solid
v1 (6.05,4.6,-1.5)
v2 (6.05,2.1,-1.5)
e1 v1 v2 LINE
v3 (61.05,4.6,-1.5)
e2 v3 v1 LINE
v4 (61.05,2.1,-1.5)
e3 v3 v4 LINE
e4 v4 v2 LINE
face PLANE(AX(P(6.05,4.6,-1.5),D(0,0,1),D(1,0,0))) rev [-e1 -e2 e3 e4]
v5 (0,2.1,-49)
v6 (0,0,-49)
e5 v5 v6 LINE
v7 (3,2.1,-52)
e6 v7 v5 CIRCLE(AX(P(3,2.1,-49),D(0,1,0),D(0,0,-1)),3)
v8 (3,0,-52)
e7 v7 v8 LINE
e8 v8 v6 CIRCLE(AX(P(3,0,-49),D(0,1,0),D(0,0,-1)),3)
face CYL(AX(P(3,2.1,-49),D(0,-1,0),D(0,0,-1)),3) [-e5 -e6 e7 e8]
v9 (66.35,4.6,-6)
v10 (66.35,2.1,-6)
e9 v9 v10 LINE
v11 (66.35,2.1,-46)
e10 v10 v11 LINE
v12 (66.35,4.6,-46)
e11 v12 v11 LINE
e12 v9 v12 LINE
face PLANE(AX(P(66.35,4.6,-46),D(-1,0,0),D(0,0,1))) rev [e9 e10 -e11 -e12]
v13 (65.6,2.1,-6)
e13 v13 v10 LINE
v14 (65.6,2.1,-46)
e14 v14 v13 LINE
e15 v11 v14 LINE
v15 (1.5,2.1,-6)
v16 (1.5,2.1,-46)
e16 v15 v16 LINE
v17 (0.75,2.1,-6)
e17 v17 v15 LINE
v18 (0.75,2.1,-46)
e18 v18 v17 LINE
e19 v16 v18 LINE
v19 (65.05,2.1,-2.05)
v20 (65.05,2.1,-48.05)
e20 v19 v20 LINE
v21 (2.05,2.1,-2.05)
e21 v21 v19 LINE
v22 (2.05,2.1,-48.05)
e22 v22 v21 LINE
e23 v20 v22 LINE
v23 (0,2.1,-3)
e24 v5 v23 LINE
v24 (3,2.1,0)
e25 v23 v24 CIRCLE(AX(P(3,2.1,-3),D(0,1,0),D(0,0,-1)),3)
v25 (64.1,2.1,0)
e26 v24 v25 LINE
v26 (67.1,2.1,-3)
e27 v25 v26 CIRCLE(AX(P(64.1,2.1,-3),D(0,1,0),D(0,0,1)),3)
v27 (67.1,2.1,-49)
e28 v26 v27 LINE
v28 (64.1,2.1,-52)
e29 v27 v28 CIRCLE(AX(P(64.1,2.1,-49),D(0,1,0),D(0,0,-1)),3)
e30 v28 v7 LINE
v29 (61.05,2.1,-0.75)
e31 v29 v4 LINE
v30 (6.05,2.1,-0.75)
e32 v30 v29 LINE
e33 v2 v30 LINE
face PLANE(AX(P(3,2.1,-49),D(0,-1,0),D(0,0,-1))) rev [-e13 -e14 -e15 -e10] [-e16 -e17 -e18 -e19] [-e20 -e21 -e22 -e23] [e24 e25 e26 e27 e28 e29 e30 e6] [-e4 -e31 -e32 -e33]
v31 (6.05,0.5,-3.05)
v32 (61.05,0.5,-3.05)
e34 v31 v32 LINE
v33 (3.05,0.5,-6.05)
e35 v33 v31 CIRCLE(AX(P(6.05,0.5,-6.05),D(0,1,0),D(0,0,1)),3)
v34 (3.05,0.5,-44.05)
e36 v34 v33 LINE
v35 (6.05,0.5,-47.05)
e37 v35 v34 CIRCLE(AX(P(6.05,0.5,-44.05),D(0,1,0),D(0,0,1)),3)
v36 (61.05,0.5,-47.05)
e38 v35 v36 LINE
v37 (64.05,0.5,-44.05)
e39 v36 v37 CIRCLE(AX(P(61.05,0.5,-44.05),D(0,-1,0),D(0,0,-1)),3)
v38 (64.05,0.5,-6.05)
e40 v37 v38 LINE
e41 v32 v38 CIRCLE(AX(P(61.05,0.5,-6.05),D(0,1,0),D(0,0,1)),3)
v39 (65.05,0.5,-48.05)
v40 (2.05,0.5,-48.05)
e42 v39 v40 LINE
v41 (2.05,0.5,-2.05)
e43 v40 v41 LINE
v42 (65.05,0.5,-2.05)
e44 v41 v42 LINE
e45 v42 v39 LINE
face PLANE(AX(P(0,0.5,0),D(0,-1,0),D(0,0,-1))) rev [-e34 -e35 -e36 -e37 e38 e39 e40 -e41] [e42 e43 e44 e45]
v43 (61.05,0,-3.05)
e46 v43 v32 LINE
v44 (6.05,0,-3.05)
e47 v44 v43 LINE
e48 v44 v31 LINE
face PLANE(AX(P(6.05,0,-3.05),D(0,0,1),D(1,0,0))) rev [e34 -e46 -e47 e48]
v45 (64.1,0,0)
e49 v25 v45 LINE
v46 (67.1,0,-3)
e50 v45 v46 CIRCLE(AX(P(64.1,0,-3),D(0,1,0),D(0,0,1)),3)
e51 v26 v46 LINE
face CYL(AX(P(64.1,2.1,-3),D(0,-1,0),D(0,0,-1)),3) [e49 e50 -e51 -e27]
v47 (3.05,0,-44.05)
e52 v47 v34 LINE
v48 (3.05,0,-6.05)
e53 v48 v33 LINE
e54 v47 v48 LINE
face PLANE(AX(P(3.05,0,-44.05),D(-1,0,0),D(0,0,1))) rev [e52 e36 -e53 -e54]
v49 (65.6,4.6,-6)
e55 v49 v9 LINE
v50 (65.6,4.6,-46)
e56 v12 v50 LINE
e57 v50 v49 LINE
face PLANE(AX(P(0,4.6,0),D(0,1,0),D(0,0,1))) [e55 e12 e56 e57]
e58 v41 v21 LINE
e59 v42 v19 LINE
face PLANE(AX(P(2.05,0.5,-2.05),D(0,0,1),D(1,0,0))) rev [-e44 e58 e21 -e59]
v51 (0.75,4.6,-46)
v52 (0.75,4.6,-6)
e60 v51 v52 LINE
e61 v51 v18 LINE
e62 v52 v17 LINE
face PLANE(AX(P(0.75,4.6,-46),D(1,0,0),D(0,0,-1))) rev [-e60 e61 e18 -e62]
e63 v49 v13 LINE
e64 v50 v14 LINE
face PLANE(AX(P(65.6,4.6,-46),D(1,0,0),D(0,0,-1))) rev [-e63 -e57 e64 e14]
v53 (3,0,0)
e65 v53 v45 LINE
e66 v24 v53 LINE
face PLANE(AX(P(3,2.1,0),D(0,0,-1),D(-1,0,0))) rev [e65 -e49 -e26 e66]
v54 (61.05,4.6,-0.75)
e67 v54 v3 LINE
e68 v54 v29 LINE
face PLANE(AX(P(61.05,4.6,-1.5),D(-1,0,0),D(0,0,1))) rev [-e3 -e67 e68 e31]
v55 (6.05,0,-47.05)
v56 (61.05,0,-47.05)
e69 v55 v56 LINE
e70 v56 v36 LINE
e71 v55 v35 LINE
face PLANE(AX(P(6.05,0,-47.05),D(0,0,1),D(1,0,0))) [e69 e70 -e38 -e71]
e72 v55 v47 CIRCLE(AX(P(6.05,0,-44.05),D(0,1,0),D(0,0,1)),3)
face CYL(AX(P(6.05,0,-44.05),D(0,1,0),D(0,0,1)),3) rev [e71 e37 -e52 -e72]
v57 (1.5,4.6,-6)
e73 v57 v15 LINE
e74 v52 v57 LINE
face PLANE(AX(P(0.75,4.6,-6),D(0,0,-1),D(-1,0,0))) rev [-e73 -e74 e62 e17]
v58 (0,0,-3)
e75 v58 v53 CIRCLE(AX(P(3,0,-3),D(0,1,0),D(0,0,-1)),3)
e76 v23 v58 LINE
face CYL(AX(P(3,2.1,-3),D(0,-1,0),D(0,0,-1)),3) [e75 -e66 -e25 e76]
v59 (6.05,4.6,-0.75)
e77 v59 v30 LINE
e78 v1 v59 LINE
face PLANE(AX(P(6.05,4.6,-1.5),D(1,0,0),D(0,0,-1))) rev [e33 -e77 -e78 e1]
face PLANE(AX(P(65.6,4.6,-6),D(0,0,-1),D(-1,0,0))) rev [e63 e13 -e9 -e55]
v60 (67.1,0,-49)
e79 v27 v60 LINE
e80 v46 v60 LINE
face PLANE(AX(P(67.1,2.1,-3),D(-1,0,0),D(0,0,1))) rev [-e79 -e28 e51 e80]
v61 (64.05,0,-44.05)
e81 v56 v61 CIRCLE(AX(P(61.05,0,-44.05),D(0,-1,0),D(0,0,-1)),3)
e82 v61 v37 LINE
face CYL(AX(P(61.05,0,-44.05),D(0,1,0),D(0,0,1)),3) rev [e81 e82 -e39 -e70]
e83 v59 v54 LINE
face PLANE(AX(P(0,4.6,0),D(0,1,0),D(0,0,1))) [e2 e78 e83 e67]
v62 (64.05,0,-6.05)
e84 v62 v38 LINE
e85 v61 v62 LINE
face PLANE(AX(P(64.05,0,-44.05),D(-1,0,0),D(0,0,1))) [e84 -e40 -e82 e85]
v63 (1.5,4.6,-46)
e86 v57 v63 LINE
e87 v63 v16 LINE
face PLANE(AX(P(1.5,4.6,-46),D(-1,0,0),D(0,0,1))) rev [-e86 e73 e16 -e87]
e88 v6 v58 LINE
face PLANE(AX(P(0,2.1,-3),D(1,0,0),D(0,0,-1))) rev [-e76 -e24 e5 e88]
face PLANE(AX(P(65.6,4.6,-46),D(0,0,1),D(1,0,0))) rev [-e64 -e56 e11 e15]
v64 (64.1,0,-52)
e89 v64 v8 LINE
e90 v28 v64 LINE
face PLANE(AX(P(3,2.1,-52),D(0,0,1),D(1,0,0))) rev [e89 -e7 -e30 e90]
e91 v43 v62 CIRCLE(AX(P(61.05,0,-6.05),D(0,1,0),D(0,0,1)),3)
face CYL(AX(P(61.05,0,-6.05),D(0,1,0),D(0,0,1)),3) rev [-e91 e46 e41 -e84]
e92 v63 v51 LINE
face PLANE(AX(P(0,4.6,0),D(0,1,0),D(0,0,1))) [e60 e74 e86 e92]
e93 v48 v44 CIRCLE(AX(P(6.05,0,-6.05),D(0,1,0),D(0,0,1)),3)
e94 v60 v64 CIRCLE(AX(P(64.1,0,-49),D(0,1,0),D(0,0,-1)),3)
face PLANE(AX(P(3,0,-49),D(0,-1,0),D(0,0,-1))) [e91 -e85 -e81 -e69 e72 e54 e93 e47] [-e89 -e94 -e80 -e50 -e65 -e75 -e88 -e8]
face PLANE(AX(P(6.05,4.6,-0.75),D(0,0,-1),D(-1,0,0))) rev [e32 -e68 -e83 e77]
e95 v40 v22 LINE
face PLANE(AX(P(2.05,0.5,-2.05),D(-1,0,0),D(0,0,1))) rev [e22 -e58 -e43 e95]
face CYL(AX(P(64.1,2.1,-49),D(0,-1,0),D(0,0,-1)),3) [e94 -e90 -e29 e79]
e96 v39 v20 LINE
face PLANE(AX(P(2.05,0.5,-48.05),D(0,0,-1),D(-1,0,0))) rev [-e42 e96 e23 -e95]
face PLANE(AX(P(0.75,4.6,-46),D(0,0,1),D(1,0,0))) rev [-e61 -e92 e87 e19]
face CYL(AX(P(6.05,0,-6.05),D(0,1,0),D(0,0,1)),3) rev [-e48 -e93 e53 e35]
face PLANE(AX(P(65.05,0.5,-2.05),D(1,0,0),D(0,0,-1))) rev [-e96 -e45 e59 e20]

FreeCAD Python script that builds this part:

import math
import FreeCAD as App
import Part
import Sketcher

V = App.Vector
Q = App.Units.Quantity

doc = App.newDocument("Part")
body = doc.addObject("PartDesign::Body", "Body")

# Sketch on XZ plane
sketch1 = body.newObject("Sketcher::SketchObject", "Sketch")
sketch1.AttachmentSupport = (doc.getObject("XZ_Plane"), [""])
sketch1.MapMode = "FlatFace"
sketch1.addGeometry(Part.LineSegment(V(3, 0, 0), V(64.1, 0, 0)), False)
sketch1.addGeometry(Part.ArcOfCircle(Part.Circle(V(64.1, -3, 0), V(0, 0, 1), 3), math.radians(0), math.radians(90)), False)
sketch1.addGeometry(Part.LineSegment(V(67.1, -3, 0), V(67.1, -49, 0)), False)
sketch1.addGeometry(Part.ArcOfCircle(Part.Circle(V(64.1, -49, 0), V(0, 0, 1), 3), math.radians(-90), math.radians(0)), False)
sketch1.addGeometry(Part.LineSegment(V(64.1, -52, 0), V(3, -52, 0)), False)
sketch1.addGeometry(Part.ArcOfCircle(Part.Circle(V(3, -49, 0), V(0, 0, 1), 3), math.radians(180), math.radians(270)), False)
sketch1.addGeometry(Part.LineSegment(V(0, -49, 0), V(0, -3, 0)), False)
sketch1.addGeometry(Part.ArcOfCircle(Part.Circle(V(3, -3, 0), V(0, 0, 1), 3), math.radians(90), math.radians(180)), False)
sketch1.addConstraint(Sketcher.Constraint("Tangent", 0, 2, 1, 2))
sketch1.addConstraint(Sketcher.Constraint("Tangent", 1, 1, 2, 1))
sketch1.addConstraint(Sketcher.Constraint("Tangent", 2, 2, 3, 2))
sketch1.addConstraint(Sketcher.Constraint("Tangent", 3, 1, 4, 1))
sketch1.addConstraint(Sketcher.Constraint("Tangent", 4, 2, 5, 2))
sketch1.addConstraint(Sketcher.Constraint("Tangent", 5, 1, 6, 1))
sketch1.addConstraint(Sketcher.Constraint("Tangent", 6, 2, 7, 2))
sketch1.addConstraint(Sketcher.Constraint("Tangent", 7, 1, 0, 1))
sketch1.addConstraint(Sketcher.Constraint("Horizontal", 0))
sketch1.addConstraint(Sketcher.Constraint("Vertical", 2))
sketch1.addConstraint(Sketcher.Constraint("Horizontal", 4))
sketch1.addConstraint(Sketcher.Constraint("Vertical", 6))
sketch1.addConstraint(Sketcher.Constraint("Equal", 1, 3))
sketch1.addConstraint(Sketcher.Constraint("Equal", 3, 5))
sketch1.addConstraint(Sketcher.Constraint("Equal", 5, 7))
sketch1.addConstraint(Sketcher.Constraint("PointOnObject", 0, 2, -1))
sketch1.addConstraint(Sketcher.Constraint("PointOnObject", 5, 1, -2))
sketch1.addConstraint(Sketcher.Constraint("Radius", 1, Q("3 mm")))
sketch1.addConstraint(Sketcher.Constraint("DistanceY", 2, 2, 2, 1, Q("46 mm")))
sketch1.addConstraint(Sketcher.Constraint("DistanceX", 0, 1, 0, 2, Q("61.1 mm")))
pad1 = body.newObject("PartDesign::Pad", "Pad")
pad1.Profile = sketch1
pad1.Length = 2.1
pad1.Reversed = True

# Sketch on XZ plane
sketch2 = body.newObject("Sketcher::SketchObject", "Sketch001")
sketch2.AttachmentSupport = (doc.getObject("XZ_Plane"), [""])
sketch2.MapMode = "FlatFace"
sketch2.AttachmentOffset = App.Placement(V(0, 0, -2.1), App.Rotation())
sketch2.addGeometry(Part.LineSegment(V(2.05, -48.05, 0), V(2.05, -2.05, 0)), False)
sketch2.addGeometry(Part.LineSegment(V(2.05, -2.05, 0), V(65.05, -2.05, 0)), False)
sketch2.addGeometry(Part.LineSegment(V(65.05, -2.05, 0), V(65.05, -48.05, 0)), False)
sketch2.addGeometry(Part.LineSegment(V(65.05, -48.05, 0), V(2.05, -48.05, 0)), False)
sketch2.addConstraint(Sketcher.Constraint("Coincident", 0, 2, 1, 1))
sketch2.addConstraint(Sketcher.Constraint("Coincident", 1, 2, 2, 1))
sketch2.addConstraint(Sketcher.Constraint("Coincident", 2, 2, 3, 1))
sketch2.addConstraint(Sketcher.Constraint("Coincident", 3, 2, 0, 1))
sketch2.addConstraint(Sketcher.Constraint("Vertical", 0))
sketch2.addConstraint(Sketcher.Constraint("Horizontal", 1))
sketch2.addConstraint(Sketcher.Constraint("Vertical", 2))
sketch2.addConstraint(Sketcher.Constraint("Horizontal", 3))
sketch2.addConstraint(Sketcher.Constraint("DistanceX", 1, 1, 1, 2, Q("63 mm")))
sketch2.addConstraint(Sketcher.Constraint("DistanceY", 0, 1, 0, 2, Q("46 mm")))
sketch2.addConstraint(Sketcher.Constraint("DistanceX", -1, 1, 0, 2, Q("2.05 mm")))
sketch2.addConstraint(Sketcher.Constraint("DistanceY", 0, 2, -1, 1, Q("2.05 mm")))
pocket1 = body.newObject("PartDesign::Pocket", "Pocket")
pocket1.Profile = sketch2
pocket1.Length = 1.6
pocket1.Reversed = True

# Sketch on XZ plane
sketch3 = body.newObject("Sketcher::SketchObject", "Sketch002")
sketch3.AttachmentSupport = (doc.getObject("XZ_Plane"), [""])
sketch3.MapMode = "FlatFace"
sketch3.AttachmentOffset = App.Placement(V(0, 0, -0.5), App.Rotation())
sketch3.addGeometry(Part.LineSegment(V(61.05, -47.05, 0), V(6.05, -47.05, 0)), False)
sketch3.addGeometry(Part.ArcOfCircle(Part.Circle(V(6.05, -44.05, 0), V(0, 0, 1), 3), math.radians(180), math.radians(270)), False)
sketch3.addGeometry(Part.LineSegment(V(3.05, -44.05, 0), V(3.05, -6.05, 0)), False)
sketch3.addGeometry(Part.ArcOfCircle(Part.Circle(V(6.05, -6.05, 0), V(0, 0, 1), 3), math.radians(90), math.radians(180)), False)
sketch3.addGeometry(Part.LineSegment(V(6.05, -3.05, 0), V(61.05, -3.05, 0)), False)
sketch3.addGeometry(Part.ArcOfCircle(Part.Circle(V(61.05, -6.05, 0), V(0, 0, 1), 3), math.radians(0), math.radians(90)), False)
sketch3.addGeometry(Part.LineSegment(V(64.05, -6.05, 0), V(64.05, -44.05, 0)), False)
sketch3.addGeometry(Part.ArcOfCircle(Part.Circle(V(61.05, -44.05, 0), V(0, 0, 1), 3), math.radians(-90), math.radians(0)), False)
sketch3.addConstraint(Sketcher.Constraint("Tangent", 0, 2, 1, 2))
sketch3.addConstraint(Sketcher.Constraint("Tangent", 1, 1, 2, 1))
sketch3.addConstraint(Sketcher.Constraint("Tangent", 2, 2, 3, 2))
sketch3.addConstraint(Sketcher.Constraint("Tangent", 3, 1, 4, 1))
sketch3.addConstraint(Sketcher.Constraint("Tangent", 4, 2, 5, 2))
sketch3.addConstraint(Sketcher.Constraint("Tangent", 5, 1, 6, 1))
sketch3.addConstraint(Sketcher.Constraint("Tangent", 6, 2, 7, 2))
sketch3.addConstraint(Sketcher.Constraint("Tangent", 7, 1, 0, 1))
sketch3.addConstraint(Sketcher.Constraint("Horizontal", 0))
sketch3.addConstraint(Sketcher.Constraint("Vertical", 2))
sketch3.addConstraint(Sketcher.Constraint("Horizontal", 4))
sketch3.addConstraint(Sketcher.Constraint("Vertical", 6))
sketch3.addConstraint(Sketcher.Constraint("Equal", 1, 3))
sketch3.addConstraint(Sketcher.Constraint("Equal", 3, 5))
sketch3.addConstraint(Sketcher.Constraint("Equal", 5, 7))
sketch3.addConstraint(Sketcher.Constraint("Radius", 1, Q("3 mm")))
sketch3.addConstraint(Sketcher.Constraint("DistanceX", 0, 2, 0, 1, Q("55 mm")))
sketch3.addConstraint(Sketcher.Constraint("DistanceY", 2, 1, 2, 2, Q("38 mm")))
sketch3.addConstraint(Sketcher.Constraint("DistanceX", -1, 1, 1, 3, Q("6.05 mm")))
sketch3.addConstraint(Sketcher.Constraint("DistanceY", 1, 3, -1, 1, Q("44.05 mm")))
pocket2 = body.newObject("PartDesign::Pocket", "Pocket001")
pocket2.Profile = sketch3
pocket2.Length = 0.5
pocket2.Reversed = True

# Sketch on XZ plane
sketch4 = body.newObject("Sketcher::SketchObject", "Sketch003")
sketch4.AttachmentSupport = (doc.getObject("XZ_Plane"), [""])
sketch4.MapMode = "FlatFace"
sketch4.AttachmentOffset = App.Placement(V(0, 0, -2.1), App.Rotation())
sketch4.addGeometry(Part.LineSegment(V(65.6, -46, 0), V(65.6, -6, 0)), False)
sketch4.addGeometry(Part.LineSegment(V(65.6, -6, 0), V(66.35, -6, 0)), False)
sketch4.addGeometry(Part.LineSegment(V(66.35, -6, 0), V(66.35, -46, 0)), False)
sketch4.addGeometry(Part.LineSegment(V(66.35, -46, 0), V(65.6, -46, 0)), False)
sketch4.addGeometry(Part.LineSegment(V(0.75, -46, 0), V(0.75, -6, 0)), False)
sketch4.addGeometry(Part.LineSegment(V(0.75, -6, 0), V(1.5, -6, 0)), False)
sketch4.addGeometry(Part.LineSegment(V(1.5, -6, 0), V(1.5, -46, 0)), False)
sketch4.addGeometry(Part.LineSegment(V(1.5, -46, 0), V(0.75, -46, 0)), False)
sketch4.addGeometry(Part.LineSegment(V(6.05, -1.5, 0), V(6.05, -0.75, 0)), False)
sketch4.addGeometry(Part.LineSegment(V(6.05, -0.75, 0), V(61.05, -0.75, 0)), False)
sketch4.addGeometry(Part.LineSegment(V(61.05, -0.75, 0), V(61.05, -1.5, 0)), False)
sketch4.addGeometry(Part.LineSegment(V(61.05, -1.5, 0), V(6.05, -1.5, 0)), False)
sketch4.addConstraint(Sketcher.Constraint("Coincident", 0, 2, 1, 1))
sketch4.addConstraint(Sketcher.Constraint("Coincident", 1, 2, 2, 1))
sketch4.addConstraint(Sketcher.Constraint("Coincident", 2, 2, 3, 1))
sketch4.addConstraint(Sketcher.Constraint("Coincident", 3, 2, 0, 1))
sketch4.addConstraint(Sketcher.Constraint("Coincident", 4, 2, 5, 1))
sketch4.addConstraint(Sketcher.Constraint("Coincident", 5, 2, 6, 1))
sketch4.addConstraint(Sketcher.Constraint("Coincident", 6, 2, 7, 1))
sketch4.addConstraint(Sketcher.Constraint("Coincident", 7, 2, 4, 1))
sketch4.addConstraint(Sketcher.Constraint("Coincident", 8, 2, 9, 1))
sketch4.addConstraint(Sketcher.Constraint("Coincident", 9, 2, 10, 1))
sketch4.addConstraint(Sketcher.Constraint("Coincident", 10, 2, 11, 1))
sketch4.addConstraint(Sketcher.Constraint("Coincident", 11, 2, 8, 1))
sketch4.addConstraint(Sketcher.Constraint("Vertical", 0))
sketch4.addConstraint(Sketcher.Constraint("Horizontal", 1))
sketch4.addConstraint(Sketcher.Constraint("Vertical", 2))
sketch4.addConstraint(Sketcher.Constraint("Horizontal", 3))
sketch4.addConstraint(Sketcher.Constraint("Vertical", 4))
sketch4.addConstraint(Sketcher.Constraint("Horizontal", 5))
sketch4.addConstraint(Sketcher.Constraint("Vertical", 6))
sketch4.addConstraint(Sketcher.Constraint("Horizontal", 7))
sketch4.addConstraint(Sketcher.Constraint("Vertical", 8))
sketch4.addConstraint(Sketcher.Constraint("Horizontal", 9))
sketch4.addConstraint(Sketcher.Constraint("Vertical", 10))
sketch4.addConstraint(Sketcher.Constraint("Horizontal", 11))
sketch4.addConstraint(Sketcher.Constraint("Horizontal", 1, 2, 4, 2))
sketch4.addConstraint(Sketcher.Constraint("Horizontal", 3, 2, 6, 2))
sketch4.addConstraint(Sketcher.Constraint("Equal", 3, 5))
sketch4.addConstraint(Sketcher.Constraint("Equal", 7, 8))
sketch4.addConstraint(Sketcher.Constraint("DistanceX", 9, 1, 9, 2, Q("55 mm")))
sketch4.addConstraint(Sketcher.Constraint("DistanceY", 0, 1, 0, 2, Q("40 mm")))
sketch4.addConstraint(Sketcher.Constraint("DistanceY", 0, 2, -1, 1, Q("6 mm")))
sketch4.addConstraint(Sketcher.Constraint("DistanceX", 1, 1, 1, 2, Q("0.75 mm")))
sketch4.addConstraint(Sketcher.Constraint("DistanceX", -1, 1, 0, 2, Q("65.6 mm")))
sketch4.addConstraint(Sketcher.Constraint("DistanceX", -1, 1, 5, 2, Q("1.5 mm")))
sketch4.addConstraint(Sketcher.Constraint("DistanceY", 10, 2, -1, 1, Q("1.5 mm")))
sketch4.addConstraint(Sketcher.Constraint("DistanceX", 4, 2, 8, 2, Q("5.3 mm")))
pad2 = body.newObject("PartDesign::Pad", "Pad001")
pad2.Profile = sketch4
pad2.Length = 2.5
pad2.Reversed = True

doc.recompute()
